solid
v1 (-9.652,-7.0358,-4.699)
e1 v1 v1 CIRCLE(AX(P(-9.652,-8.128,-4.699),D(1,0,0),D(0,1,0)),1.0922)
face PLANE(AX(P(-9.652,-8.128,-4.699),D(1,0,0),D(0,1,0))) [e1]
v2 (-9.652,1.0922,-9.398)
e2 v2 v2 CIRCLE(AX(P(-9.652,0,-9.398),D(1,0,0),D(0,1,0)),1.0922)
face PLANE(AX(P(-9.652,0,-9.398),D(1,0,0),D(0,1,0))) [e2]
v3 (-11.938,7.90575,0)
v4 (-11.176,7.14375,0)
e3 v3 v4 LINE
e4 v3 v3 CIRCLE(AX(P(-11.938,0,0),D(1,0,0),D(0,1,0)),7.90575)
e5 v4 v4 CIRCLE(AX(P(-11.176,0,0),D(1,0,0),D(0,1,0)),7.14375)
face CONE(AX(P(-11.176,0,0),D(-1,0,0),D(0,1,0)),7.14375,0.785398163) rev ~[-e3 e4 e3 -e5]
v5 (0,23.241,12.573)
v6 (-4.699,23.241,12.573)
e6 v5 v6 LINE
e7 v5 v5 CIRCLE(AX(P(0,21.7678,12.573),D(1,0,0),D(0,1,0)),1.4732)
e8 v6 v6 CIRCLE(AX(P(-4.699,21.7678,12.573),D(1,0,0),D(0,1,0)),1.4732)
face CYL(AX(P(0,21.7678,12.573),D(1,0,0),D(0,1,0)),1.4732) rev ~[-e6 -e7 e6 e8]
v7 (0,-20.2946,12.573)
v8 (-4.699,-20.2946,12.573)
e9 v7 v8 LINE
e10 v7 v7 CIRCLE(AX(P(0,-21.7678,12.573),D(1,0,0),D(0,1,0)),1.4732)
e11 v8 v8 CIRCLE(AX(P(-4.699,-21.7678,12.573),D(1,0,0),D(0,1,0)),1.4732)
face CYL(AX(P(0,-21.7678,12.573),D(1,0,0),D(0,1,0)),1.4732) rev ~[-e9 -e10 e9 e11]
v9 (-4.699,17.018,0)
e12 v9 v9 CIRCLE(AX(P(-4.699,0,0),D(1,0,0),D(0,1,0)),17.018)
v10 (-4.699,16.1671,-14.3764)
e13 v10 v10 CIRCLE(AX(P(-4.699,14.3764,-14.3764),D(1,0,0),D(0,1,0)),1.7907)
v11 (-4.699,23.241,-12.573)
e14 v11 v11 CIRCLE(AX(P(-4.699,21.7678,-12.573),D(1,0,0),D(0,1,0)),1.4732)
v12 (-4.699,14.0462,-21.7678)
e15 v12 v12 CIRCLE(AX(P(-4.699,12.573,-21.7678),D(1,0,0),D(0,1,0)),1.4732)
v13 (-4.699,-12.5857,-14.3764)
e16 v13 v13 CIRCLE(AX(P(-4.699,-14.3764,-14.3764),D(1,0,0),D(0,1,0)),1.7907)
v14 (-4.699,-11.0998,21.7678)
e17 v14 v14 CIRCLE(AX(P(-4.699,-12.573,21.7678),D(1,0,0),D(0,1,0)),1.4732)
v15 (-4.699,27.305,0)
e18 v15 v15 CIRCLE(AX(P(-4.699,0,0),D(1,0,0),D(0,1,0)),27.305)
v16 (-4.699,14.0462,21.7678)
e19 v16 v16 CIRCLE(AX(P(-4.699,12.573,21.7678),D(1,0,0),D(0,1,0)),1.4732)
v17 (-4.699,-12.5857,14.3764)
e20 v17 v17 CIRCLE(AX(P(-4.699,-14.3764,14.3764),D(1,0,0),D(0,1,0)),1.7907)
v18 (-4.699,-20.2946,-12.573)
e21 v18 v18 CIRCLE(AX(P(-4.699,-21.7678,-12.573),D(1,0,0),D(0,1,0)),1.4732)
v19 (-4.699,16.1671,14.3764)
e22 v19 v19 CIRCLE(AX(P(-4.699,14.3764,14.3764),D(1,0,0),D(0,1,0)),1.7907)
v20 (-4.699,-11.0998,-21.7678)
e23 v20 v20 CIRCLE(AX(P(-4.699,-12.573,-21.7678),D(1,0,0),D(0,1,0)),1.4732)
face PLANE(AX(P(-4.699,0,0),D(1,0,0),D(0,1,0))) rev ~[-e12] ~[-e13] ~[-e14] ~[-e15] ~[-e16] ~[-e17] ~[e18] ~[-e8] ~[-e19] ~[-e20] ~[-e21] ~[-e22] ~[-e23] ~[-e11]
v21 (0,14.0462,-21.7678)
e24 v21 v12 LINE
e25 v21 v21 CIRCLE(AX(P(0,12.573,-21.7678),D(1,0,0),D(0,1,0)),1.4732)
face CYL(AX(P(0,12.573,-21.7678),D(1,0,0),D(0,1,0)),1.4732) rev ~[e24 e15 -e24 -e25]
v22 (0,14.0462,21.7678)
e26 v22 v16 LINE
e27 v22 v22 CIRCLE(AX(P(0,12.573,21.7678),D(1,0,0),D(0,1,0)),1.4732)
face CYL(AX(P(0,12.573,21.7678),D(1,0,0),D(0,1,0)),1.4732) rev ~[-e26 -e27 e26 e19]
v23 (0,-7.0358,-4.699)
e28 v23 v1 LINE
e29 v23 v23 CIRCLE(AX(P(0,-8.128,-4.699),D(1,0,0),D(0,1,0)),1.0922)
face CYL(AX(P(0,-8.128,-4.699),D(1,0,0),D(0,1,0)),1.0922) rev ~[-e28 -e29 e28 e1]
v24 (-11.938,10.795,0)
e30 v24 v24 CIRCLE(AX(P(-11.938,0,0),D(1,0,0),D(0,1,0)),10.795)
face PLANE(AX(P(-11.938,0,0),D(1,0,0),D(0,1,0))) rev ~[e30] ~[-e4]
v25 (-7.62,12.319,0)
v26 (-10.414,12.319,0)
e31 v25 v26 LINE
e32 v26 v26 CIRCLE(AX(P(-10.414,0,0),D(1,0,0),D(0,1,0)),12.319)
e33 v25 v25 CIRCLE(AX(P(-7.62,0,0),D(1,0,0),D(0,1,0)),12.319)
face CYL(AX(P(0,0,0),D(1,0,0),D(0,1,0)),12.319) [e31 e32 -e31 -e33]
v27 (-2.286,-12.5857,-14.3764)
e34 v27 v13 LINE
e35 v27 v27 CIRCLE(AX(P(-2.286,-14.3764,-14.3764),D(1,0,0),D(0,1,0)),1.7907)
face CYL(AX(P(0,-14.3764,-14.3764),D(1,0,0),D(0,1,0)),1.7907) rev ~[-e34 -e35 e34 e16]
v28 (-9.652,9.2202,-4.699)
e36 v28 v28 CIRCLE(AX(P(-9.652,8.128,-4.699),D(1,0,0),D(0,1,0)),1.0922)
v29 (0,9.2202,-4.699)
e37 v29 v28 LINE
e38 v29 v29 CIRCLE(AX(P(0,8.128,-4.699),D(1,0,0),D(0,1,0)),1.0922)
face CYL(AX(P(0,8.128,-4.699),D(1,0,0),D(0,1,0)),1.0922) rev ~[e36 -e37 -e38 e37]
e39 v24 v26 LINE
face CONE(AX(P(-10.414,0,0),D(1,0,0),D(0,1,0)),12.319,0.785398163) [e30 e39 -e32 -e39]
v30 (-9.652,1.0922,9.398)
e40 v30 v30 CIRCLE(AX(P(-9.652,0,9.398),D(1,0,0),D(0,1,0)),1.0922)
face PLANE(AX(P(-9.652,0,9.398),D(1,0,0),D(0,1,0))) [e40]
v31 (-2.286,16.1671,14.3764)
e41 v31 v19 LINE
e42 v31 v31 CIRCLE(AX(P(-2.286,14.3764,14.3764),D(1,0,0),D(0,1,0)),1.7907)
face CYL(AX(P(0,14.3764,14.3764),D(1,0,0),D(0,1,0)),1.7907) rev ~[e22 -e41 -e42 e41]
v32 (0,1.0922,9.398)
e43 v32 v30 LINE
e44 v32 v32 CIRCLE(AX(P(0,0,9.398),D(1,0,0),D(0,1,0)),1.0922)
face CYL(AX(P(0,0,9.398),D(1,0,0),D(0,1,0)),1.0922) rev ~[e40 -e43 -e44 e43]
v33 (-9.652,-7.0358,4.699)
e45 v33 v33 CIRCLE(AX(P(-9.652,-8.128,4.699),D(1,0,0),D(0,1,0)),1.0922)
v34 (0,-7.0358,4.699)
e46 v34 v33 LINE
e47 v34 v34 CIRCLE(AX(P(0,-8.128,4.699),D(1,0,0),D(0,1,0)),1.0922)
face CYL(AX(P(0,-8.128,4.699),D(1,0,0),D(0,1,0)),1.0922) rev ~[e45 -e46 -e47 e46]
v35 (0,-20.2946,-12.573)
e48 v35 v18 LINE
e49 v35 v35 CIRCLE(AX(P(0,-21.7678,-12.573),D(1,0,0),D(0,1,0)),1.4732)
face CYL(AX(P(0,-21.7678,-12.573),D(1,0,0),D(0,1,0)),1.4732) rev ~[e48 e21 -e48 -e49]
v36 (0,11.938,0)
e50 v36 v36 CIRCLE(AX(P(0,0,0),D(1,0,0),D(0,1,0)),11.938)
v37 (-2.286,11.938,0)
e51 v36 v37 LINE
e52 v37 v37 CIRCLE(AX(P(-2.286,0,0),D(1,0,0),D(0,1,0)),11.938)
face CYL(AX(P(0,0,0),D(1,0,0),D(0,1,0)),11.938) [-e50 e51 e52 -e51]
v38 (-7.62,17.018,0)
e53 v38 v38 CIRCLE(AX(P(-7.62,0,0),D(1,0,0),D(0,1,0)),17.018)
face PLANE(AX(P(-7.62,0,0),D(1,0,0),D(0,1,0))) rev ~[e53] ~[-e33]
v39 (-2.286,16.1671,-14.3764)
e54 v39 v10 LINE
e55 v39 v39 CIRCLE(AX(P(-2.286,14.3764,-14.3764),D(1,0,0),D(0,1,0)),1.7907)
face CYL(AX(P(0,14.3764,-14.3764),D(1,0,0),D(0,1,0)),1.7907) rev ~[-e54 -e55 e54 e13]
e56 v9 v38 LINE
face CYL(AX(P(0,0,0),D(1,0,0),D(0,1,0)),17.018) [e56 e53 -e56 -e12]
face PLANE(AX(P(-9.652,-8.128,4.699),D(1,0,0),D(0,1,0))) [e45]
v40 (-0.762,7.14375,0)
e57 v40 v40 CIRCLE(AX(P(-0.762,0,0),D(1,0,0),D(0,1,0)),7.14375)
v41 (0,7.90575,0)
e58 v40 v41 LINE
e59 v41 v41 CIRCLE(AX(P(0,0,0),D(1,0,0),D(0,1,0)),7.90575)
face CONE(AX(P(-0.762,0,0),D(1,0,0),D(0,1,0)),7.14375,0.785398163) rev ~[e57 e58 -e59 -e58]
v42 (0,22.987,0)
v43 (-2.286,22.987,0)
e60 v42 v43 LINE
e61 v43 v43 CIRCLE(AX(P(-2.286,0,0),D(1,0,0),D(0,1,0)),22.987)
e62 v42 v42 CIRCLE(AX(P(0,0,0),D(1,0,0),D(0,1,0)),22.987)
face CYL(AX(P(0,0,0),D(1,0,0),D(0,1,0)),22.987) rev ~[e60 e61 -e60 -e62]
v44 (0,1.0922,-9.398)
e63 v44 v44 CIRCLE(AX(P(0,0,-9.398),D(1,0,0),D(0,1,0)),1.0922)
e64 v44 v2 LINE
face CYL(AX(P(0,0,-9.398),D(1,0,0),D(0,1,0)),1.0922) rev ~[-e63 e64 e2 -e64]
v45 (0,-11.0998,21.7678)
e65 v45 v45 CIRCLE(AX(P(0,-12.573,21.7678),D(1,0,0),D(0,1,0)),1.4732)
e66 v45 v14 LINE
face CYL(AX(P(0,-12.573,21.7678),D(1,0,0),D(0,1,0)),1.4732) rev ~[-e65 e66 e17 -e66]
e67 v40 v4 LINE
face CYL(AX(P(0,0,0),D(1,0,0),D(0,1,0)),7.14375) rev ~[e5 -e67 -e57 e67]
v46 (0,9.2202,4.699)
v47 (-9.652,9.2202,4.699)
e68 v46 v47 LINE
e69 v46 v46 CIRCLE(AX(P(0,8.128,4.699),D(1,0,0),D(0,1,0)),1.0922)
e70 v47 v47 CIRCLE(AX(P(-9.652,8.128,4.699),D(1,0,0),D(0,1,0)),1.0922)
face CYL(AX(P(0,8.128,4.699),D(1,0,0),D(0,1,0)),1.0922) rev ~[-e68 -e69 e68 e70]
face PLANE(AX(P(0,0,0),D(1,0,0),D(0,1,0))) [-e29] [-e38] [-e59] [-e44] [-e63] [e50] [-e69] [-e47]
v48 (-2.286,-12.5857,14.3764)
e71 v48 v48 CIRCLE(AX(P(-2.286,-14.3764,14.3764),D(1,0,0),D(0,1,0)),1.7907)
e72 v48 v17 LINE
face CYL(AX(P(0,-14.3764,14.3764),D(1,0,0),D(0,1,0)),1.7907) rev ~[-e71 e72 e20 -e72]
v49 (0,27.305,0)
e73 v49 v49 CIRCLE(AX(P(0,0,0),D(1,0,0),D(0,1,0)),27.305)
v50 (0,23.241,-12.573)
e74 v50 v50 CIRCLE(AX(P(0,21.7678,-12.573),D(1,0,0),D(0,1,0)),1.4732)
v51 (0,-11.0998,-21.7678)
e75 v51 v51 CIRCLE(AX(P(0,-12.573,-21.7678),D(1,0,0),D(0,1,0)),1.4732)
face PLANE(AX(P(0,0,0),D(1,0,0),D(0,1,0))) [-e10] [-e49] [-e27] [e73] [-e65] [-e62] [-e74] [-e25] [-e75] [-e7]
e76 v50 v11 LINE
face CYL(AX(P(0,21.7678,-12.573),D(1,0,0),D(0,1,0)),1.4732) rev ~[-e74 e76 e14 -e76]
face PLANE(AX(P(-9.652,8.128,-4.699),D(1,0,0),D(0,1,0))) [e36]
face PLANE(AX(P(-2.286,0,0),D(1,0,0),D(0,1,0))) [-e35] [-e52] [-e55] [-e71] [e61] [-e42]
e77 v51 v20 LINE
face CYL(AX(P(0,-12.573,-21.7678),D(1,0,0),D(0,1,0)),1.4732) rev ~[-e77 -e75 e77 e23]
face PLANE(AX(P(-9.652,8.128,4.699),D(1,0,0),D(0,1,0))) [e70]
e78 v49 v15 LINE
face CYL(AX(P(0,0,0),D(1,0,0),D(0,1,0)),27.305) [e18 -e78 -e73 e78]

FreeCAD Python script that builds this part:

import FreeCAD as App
import Part
import Sketcher
from FreeCAD import Vector
Q = App.Units.Quantity


def edges_at(feature, points):
    """Names of the edges that pass closest to the given points."""
    edges = feature.Shape.Edges
    near = lambda p: min(range(len(edges)), key=lambda i: edges[i].distToShape(Part.Vertex(*p))[0])
    return sorted({f"Edge{near(p) + 1}" for p in points})

doc = App.newDocument("Part")
body = doc.addObject("PartDesign::Body", "Body")

# Sketch on YZ plane
sketch1 = body.newObject("Sketcher::SketchObject", "Sketch")
sketch1.AttachmentSupport = (doc.getObject("YZ_Plane"), [""])
sketch1.MapMode = "FlatFace"
sketch1.addGeometry([
    Part.Circle(Vector(0, 0, 0), Vector(0, 0, 1), 12.319),
    Part.Circle(Vector(0, 0, 0), Vector(0, 0, 1), 7.14375),
], False)
sketch1.addConstraint([
    Sketcher.Constraint("Coincident", 0, 3, -1, 1),
    Sketcher.Constraint("Coincident", 1, 3, -1, 1),
    Sketcher.Constraint("Diameter", 0, Q("0.97 in")),
    Sketcher.Constraint("Diameter", 1, Q("0.5625 in")),
])
pad1 = body.newObject("PartDesign::Pad", "Pad")
pad1.Profile = sketch1
pad1.Length = Q("0.47 in")
pad1.Reversed = True

# Sketch on YZ plane
sketch2 = body.newObject("Sketcher::SketchObject", "Sketch001")
sketch2.AttachmentSupport = (doc.getObject("YZ_Plane"), [""])
sketch2.MapMode = "FlatFace"
sketch2.addGeometry([
    Part.Circle(Vector(0, 0, 0), Vector(0, 0, 1), 17.018),
    Part.Circle(Vector(0, 0, 0), Vector(0, 0, 1), 12.319),
], False)
sketch2.addConstraint([
    Sketcher.Constraint("Coincident", 0, 3, -1, 1),
    Sketcher.Constraint("Coincident", 1, 3, -1, 1),
    Sketcher.Constraint("Diameter", 0, Q("1.34 in")),
    Sketcher.Constraint("Diameter", 1, Q("0.97 in")),
])
pad2 = body.newObject("PartDesign::Pad", "Pad001")
pad2.Profile = sketch2
pad2.Length = Q("0.3 in")
pad2.Reversed = True

# Sketch on YZ plane
sketch3 = body.newObject("Sketcher::SketchObject", "Sketch002")
sketch3.AttachmentSupport = (doc.getObject("YZ_Plane"), [""])
sketch3.MapMode = "FlatFace"
sketch3.addGeometry([
    Part.Circle(Vector(0, 0, 0), Vector(0, 0, 1), 27.305),
    Part.Circle(Vector(0, 0, 0), Vector(0, 0, 1), 17.018),
], False)
sketch3.addConstraint([
    Sketcher.Constraint("Coincident", 0, 3, -1, 1),
    Sketcher.Constraint("Coincident", 1, 3, -1, 1),
    Sketcher.Constraint("Diameter", 0, Q("2.15 in")),
    Sketcher.Constraint("Diameter", 1, Q("1.34 in")),
])
pad3 = body.newObject("PartDesign::Pad", "Pad002")
pad3.Profile = sketch3
pad3.Length = Q("0.185 in")
pad3.Reversed = True
doc.recompute()

chamfer = body.newObject("PartDesign::Chamfer", "Chamfer")
chamfer.Base = (pad3, edges_at(pad3, [(-11.938, -12.319, 0)]))
chamfer.Size = Q("0.06 in")
doc.recompute()

chamfer2 = body.newObject("PartDesign::Chamfer", "Chamfer001")
chamfer2.Base = (chamfer, edges_at(chamfer, [(-11.938, -7.144, 0), (0, -7.144, 0)]))
chamfer2.Size = Q("0.03 in")

# Sketch on YZ plane
sketch4 = body.newObject("Sketcher::SketchObject", "Sketch003")
sketch4.AttachmentSupport = (doc.getObject("YZ_Plane"), [""])
sketch4.MapMode = "FlatFace"
sketch4.addGeometry([
    Part.Circle(Vector(-12.573, 21.7678, 0), Vector(0, 0, 1), 1.4732),  # 0
    Part.Circle(Vector(-21.7678, 12.573, 0), Vector(0, 0, 1), 1.4732),  # 1
    Part.Circle(Vector(-21.7678, -12.573, 0), Vector(0, 0, 1), 1.4732),  # 2
    Part.Circle(Vector(12.573, 21.7678, 0), Vector(0, 0, 1), 1.4732),  # 3
    Part.Circle(Vector(21.7678, 12.573, 0), Vector(0, 0, 1), 1.4732),  # 4
    Part.Circle(Vector(21.7678, -12.573, 0), Vector(0, 0, 1), 1.4732),  # 5
    Part.Circle(Vector(12.573, -21.7678, 0), Vector(0, 0, 1), 1.4732),  # 6
    Part.Circle(Vector(-12.573, -21.7678, 0), Vector(0, 0, 1), 1.4732),  # 7
    Part.Circle(Vector(-14.3764, 14.3764, 0), Vector(0, 0, 1), 1.7907),  # 8
    Part.Circle(Vector(14.3764, 14.3764, 0), Vector(0, 0, 1), 1.7907),  # 9
    Part.Circle(Vector(14.3764, -14.3764, 0), Vector(0, 0, 1), 1.7907),  # 10
    Part.Circle(Vector(-14.3764, -14.3764, 0), Vector(0, 0, 1), 1.7907),  # 11
], False)
sketch4.addConstraint([
    Sketcher.Constraint("Equal", 0, 1),
    Sketcher.Constraint("Equal", 1, 2),
    Sketcher.Constraint("Equal", 2, 3),
    Sketcher.Constraint("Equal", 3, 4),
    Sketcher.Constraint("Equal", 4, 5),
    Sketcher.Constraint("Equal", 5, 6),
    Sketcher.Constraint("Equal", 6, 7),
    Sketcher.Constraint("Equal", 8, 9),
    Sketcher.Constraint("Equal", 9, 10),
    Sketcher.Constraint("Equal", 10, 11),
    Sketcher.Constraint("Symmetric", 2, 3, 4, 3, -1, 1),
    Sketcher.Constraint("Symmetric", 1, 3, 5, 3, -1, 1),
    Sketcher.Constraint("Symmetric", 0, 3, 6, 3, -1, 1),
    Sketcher.Constraint("Symmetric", 3, 3, 7, 3, -1, 1),
    Sketcher.Constraint("Symmetric", 8, 3, 10, 3, -1, 1),
    Sketcher.Constraint("Symmetric", 9, 3, 11, 3, -1, 1),
    Sketcher.Constraint("Symmetric", 0, 3, 3, 3, -2),
    Sketcher.Constraint("Symmetric", 1, 3, 4, 3, -2),
    Sketcher.Constraint("Symmetric", 8, 3, 9, 3, -2),
    Sketcher.Constraint("Diameter", 0, Q("0.116 in")),
    Sketcher.Constraint("Diameter", 8, Q("0.141 in")),
    Sketcher.Constraint("DistanceY", 2, 3, 1, 3, Q("0.99 in")),
    Sketcher.Constraint("DistanceX", 0, 3, 3, 3, Q("0.99 in")),
    Sketcher.Constraint("DistanceY", -1, 1, 0, 3, Q("0.857 in")),
    Sketcher.Constraint("DistanceX", 1, 3, -1, 1, Q("0.857 in")),
    Sketcher.Constraint("DistanceX", 8, 3, -1, 1, Q("0.566 in")),
    Sketcher.Constraint("DistanceY", -1, 1, 8, 3, Q("0.566 in")),
])
pocket1 = body.newObject("PartDesign::Pocket", "Pocket")
pocket1.Profile = sketch4
pocket1.Length = Q("1 in")

# Sketch on YZ plane
sketch5 = body.newObject("Sketcher::SketchObject", "Sketch004")
sketch5.AttachmentSupport = (doc.getObject("YZ_Plane"), [""])
sketch5.MapMode = "FlatFace"
sketch5.addGeometry([
    Part.Circle(Vector(0, 0, 0), Vector(0, 0, 1), 22.987),
    Part.Circle(Vector(0, 0, 0), Vector(0, 0, 1), 11.938),
], False)
sketch5.addConstraint([
    Sketcher.Constraint("Coincident", 0, 3, -1, 1),
    Sketcher.Constraint("Coincident", 1, 3, -1, 1),
    Sketcher.Constraint("Diameter", 0, Q("1.81 in")),
    Sketcher.Constraint("Diameter", 1, Q("0.94 in")),
])
pocket2 = body.newObject("PartDesign::Pocket", "Pocket001")
pocket2.Profile = sketch5
pocket2.Length = Q("0.09 in")

# Sketch on YZ plane
sketch6 = body.newObject("Sketcher::SketchObject", "Sketch005")
sketch6.AttachmentSupport = (doc.getObject("YZ_Plane"), [""])
sketch6.MapMode = "FlatFace"
sketch6.addGeometry([
    Part.Circle(Vector(-8.128, 4.699, 0), Vector(0, 0, 1), 1.0922),  # 0
    Part.Circle(Vector(0, 9.398, 0), Vector(0, 0, 1), 1.0922),  # 1
    Part.Circle(Vector(8.128, 4.699, 0), Vector(0, 0, 1), 1.0922),  # 2
    Part.Circle(Vector(8.128, -4.699, 0), Vector(0, 0, 1), 1.0922),  # 3
    Part.Circle(Vector(0, -9.398, 0), Vector(0, 0, 1), 1.0922),  # 4
    Part.Circle(Vector(-8.128, -4.699, 0), Vector(0, 0, 1), 1.0922),  # 5
], False)
sketch6.addConstraint([
    Sketcher.Constraint("Equal", 0, 1),
    Sketcher.Constraint("Equal", 1, 2),
    Sketcher.Constraint("Equal", 2, 3),
    Sketcher.Constraint("Equal", 3, 4),
    Sketcher.Constraint("Equal", 4, 5),
    Sketcher.Constraint("Symmetric", 0, 3, 3, 3, -1, 1),
    Sketcher.Constraint("Symmetric", 1, 3, 4, 3, -1, 1),
    Sketcher.Constraint("Symmetric", 2, 3, 5, 3, -1, 1),
    Sketcher.Constraint("Symmetric", 0, 3, 2, 3, -2),
    Sketcher.Constraint("PointOnObject", 1, 3, -2),
    Sketcher.Constraint("Diameter", 0, Q("0.086 in")),
    Sketcher.Constraint("DistanceX", 0, 3, -1, 1, Q("0.32 in")),
    Sketcher.Constraint("DistanceY", -1, 1, 1, 3, Q("0.37 in")),
    Sketcher.Constraint("DistanceY", 3, 3, 2, 3, Q("0.37 in")),
])
pocket3 = body.newObject("PartDesign::Pocket", "Pocket002")
pocket3.Profile = sketch6
pocket3.Length = Q("0.38 in")

doc.recompute()
